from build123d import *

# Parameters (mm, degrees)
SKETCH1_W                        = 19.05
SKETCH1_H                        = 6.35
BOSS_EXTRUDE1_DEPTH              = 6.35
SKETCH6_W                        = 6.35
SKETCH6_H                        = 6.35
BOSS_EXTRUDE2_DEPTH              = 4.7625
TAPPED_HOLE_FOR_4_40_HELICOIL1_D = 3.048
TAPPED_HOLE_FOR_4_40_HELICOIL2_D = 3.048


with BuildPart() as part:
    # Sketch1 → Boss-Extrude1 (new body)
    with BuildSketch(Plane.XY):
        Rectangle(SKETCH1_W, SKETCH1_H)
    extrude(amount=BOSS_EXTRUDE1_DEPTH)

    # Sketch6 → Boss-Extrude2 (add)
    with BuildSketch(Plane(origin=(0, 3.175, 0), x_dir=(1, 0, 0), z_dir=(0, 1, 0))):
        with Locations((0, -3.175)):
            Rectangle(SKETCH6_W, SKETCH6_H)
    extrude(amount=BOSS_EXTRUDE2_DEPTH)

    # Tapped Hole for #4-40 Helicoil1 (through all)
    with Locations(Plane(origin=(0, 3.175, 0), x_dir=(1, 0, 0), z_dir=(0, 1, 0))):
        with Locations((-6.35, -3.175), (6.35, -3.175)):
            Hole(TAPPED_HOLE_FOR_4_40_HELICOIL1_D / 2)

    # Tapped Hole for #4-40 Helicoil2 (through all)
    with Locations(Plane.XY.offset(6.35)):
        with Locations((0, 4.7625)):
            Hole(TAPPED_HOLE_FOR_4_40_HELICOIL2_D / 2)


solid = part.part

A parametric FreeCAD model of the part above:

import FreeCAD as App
import Part
import Sketcher
from FreeCAD import Vector
Q = App.Units.Quantity


def add_polygon(sketch, points):
    """Adds a closed chain of lines whose ends are joined by coincident constraints."""
    first, n = sketch.GeometryCount, len(points)
    for a, b in zip(points, points[1:] + points[:1]):
        sketch.addGeometry(Part.LineSegment(App.Vector(*a, 0), App.Vector(*b, 0)), False)
    for i in range(n):
        sketch.addConstraint(Sketcher.Constraint("Coincident", first + i, 2, first + (i + 1) % n, 1))

doc = App.newDocument("Part")
body = doc.addObject("PartDesign::Body", "Body")

# Sketch on XY plane
sketch1 = body.newObject("Sketcher::SketchObject", "Sketch")
sketch1.AttachmentSupport = (doc.getObject("XY_Plane"), [""])
sketch1.MapMode = "FlatFace"
add_polygon(sketch1, [(-10, 3), (-10, -3), (10, -3), (10, 3)])  # lines 0-3
sketch1.addConstraint([
    Sketcher.Constraint("Vertical", 0),
    Sketcher.Constraint("Horizontal", 1),
    Sketcher.Constraint("Vertical", 2),
    Sketcher.Constraint("Horizontal", 3),
    Sketcher.Constraint("Symmetric", 0, 2, 2, 2, -1, 1),
    Sketcher.Constraint("DistanceX", 1, 1, 1, 2, Q("0.75 in")),
    Sketcher.Constraint("DistanceY", 0, 2, 0, 1, Q("0.25 in")),
])
pad1 = body.newObject("PartDesign::Pad", "Pad")
pad1.Profile = sketch1
pad1.Length = Q("0.25 in")

# Sketch on XZ plane
sketch2 = body.newObject("Sketcher::SketchObject", "Sketch001")
sketch2.AttachmentSupport = (doc.getObject("XZ_Plane"), [""])
sketch2.MapMode = "FlatFace"
sketch2.AttachmentOffset = App.Placement(Vector(0, 0, -0.125 * 25.4), App.Rotation())
add_polygon(sketch2, [(-3, 0), (-3, 6), (3, 6), (3, 0)])  # lines 0-3
sketch2.addConstraint([
    Sketcher.Constraint("Vertical", 0),
    Sketcher.Constraint("Horizontal", 1),
    Sketcher.Constraint("Vertical", 2),
    Sketcher.Constraint("Horizontal", 3),
    Sketcher.Constraint("Symmetric", 2, 2, 3, 2, -1, 1),
    Sketcher.Constraint("Equal", 3, 0),
    Sketcher.Constraint("DistanceX", 1, 1, 1, 2, Q("0.25 in")),
])
pad2 = body.newObject("PartDesign::Pad", "Pad001")
pad2.Profile = sketch2
pad2.Length = Q("0.1875 in")
pad2.Reversed = True

# Sketch on XZ plane
sketch3 = body.newObject("Sketcher::SketchObject", "Sketch002")
sketch3.AttachmentSupport = (doc.getObject("XZ_Plane"), [""])
sketch3.MapMode = "FlatFace"
sketch3.AttachmentOffset = App.Placement(Vector(0, 0, -0.125 * 25.4), App.Rotation())
sketch3.addGeometry([
    Part.Circle(Vector(-6.3, 3.2, 0), Vector(0, 0, 1), 1.5),
    Part.Circle(Vector(6.3, 3.2, 0), Vector(0, 0, 1), 1.5),
], False)
sketch3.addConstraint([
    Sketcher.Constraint("Equal", 0, 1),
    Sketcher.Constraint("Symmetric", 0, 3, 1, 3, -2),
    Sketcher.Constraint("Diameter", 0, Q("0.12 in")),
    Sketcher.Constraint("DistanceX", 0, 3, 1, 3, Q("0.5 in")),
    Sketcher.Constraint("DistanceY", -1, 1, 0, 3, Q("0.125 in")),
])
doc.recompute()
hole = body.newObject("PartDesign::Hole", "Hole")
hole.Profile = sketch3
hole.ThreadType = "None"
hole.Diameter = Q("0.12 in")
hole.DepthType = "ThroughAll"
hole.Reversed = True

# Sketch on XY plane
sketch4 = body.newObject("Sketcher::SketchObject", "Sketch003")
sketch4.AttachmentSupport = (doc.getObject("XY_Plane"), [""])
sketch4.MapMode = "FlatFace"
sketch4.AttachmentOffset = App.Placement(Vector(0, 0, 0.25 * 25.4), App.Rotation())
sketch4.addGeometry(Part.Circle(Vector(0, 4.8, 0), Vector(0, 0, 1), 1.5), False)
sketch4.addConstraint([
    Sketcher.Constraint("PointOnObject", 0, 3, -2),
    Sketcher.Constraint("Diameter", 0, Q("0.12 in")),
    Sketcher.Constraint("DistanceY", -1, 1, 0, 3, Q("0.1875 in")),
])
doc.recompute()
hole2 = body.newObject("PartDesign::Hole", "Hole001")
hole2.Profile = sketch4
hole2.ThreadType = "None"
hole2.Diameter = Q("0.12 in")
hole2.DepthType = "ThroughAll"

doc.recompute()
